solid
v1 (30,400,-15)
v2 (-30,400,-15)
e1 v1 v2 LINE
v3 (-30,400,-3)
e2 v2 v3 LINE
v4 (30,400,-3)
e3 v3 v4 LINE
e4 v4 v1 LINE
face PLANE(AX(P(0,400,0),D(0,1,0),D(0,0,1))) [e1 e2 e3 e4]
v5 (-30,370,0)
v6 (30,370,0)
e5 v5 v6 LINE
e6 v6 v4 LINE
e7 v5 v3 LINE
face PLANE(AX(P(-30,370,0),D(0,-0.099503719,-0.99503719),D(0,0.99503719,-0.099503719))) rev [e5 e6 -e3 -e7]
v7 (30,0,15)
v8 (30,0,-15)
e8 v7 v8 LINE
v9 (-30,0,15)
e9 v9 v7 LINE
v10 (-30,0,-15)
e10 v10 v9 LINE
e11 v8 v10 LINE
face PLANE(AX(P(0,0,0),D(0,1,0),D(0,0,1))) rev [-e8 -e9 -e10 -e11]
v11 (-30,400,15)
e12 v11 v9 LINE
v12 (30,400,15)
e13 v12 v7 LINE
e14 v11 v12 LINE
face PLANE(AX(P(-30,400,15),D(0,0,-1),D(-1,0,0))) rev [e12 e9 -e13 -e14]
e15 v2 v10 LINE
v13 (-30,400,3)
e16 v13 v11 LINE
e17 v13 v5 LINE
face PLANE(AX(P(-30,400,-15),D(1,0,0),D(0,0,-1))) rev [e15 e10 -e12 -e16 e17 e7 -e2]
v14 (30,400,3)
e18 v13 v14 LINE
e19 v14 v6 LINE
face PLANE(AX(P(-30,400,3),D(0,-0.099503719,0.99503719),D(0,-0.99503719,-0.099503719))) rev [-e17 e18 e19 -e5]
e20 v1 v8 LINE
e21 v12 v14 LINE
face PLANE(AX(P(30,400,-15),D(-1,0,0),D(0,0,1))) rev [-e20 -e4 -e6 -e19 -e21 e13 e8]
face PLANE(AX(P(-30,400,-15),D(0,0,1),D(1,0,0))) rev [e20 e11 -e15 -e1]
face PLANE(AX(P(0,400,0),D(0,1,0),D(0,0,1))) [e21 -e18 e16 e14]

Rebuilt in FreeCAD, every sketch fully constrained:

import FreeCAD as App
import Part
import Sketcher

V = App.Vector
Q = App.Units.Quantity

doc = App.newDocument("Part")
body = doc.addObject("PartDesign::Body", "Body")

# Sketch on XZ plane
sketch1 = body.newObject("Sketcher::SketchObject", "Sketch")
sketch1.AttachmentSupport = (doc.getObject("XZ_Plane"), [""])
sketch1.MapMode = "FlatFace"
sketch1.addGeometry([
    Part.LineSegment(V(-30, -15, 0), V(-30, 15, 0)),
    Part.LineSegment(V(-30, 15, 0), V(30, 15, 0)),
    Part.LineSegment(V(30, 15, 0), V(30, -15, 0)),
    Part.LineSegment(V(30, -15, 0), V(-30, -15, 0)),
], False)
sketch1.addConstraint([
    Sketcher.Constraint("Coincident", 0, 2, 1, 1),
    Sketcher.Constraint("Coincident", 1, 2, 2, 1),
    Sketcher.Constraint("Coincident", 2, 2, 3, 1),
    Sketcher.Constraint("Coincident", 3, 2, 0, 1),
    Sketcher.Constraint("Vertical", 0),
    Sketcher.Constraint("Horizontal", 1),
    Sketcher.Constraint("Vertical", 2),
    Sketcher.Constraint("Horizontal", 3),
    Sketcher.Constraint("Symmetric", 0, 2, 2, 2, -1, 1),
    Sketcher.Constraint("DistanceX", 1, 1, 1, 2, Q("60 mm")),
    Sketcher.Constraint("DistanceY", 0, 1, 0, 2, Q("30 mm")),
])
pad1 = body.newObject("PartDesign::Pad", "Pad")
pad1.Profile = sketch1
pad1.Length = 400
pad1.Reversed = True

# Sketch on YZ plane
sketch2 = body.newObject("Sketcher::SketchObject", "Sketch001")
sketch2.AttachmentSupport = (doc.getObject("YZ_Plane"), [""])
sketch2.MapMode = "FlatFace"
sketch2.AttachmentOffset = App.Placement(V(0, 0, 30), App.Rotation())
sketch2.addGeometry([
    Part.LineSegment(V(400, 3, 0), V(370, 0, 0)),
    Part.LineSegment(V(370, 0, 0), V(400, -3, 0)),
    Part.LineSegment(V(400, -3, 0), V(400, 3, 0)),
], False)
sketch2.addConstraint([
    Sketcher.Constraint("Coincident", 0, 2, 1, 1),
    Sketcher.Constraint("Coincident", 1, 2, 2, 1),
    Sketcher.Constraint("Coincident", 2, 2, 0, 1),
    Sketcher.Constraint("Vertical", 2),
    Sketcher.Constraint("PointOnObject", 0, 2, -1),
    Sketcher.Constraint("Equal", 0, 1),
    Sketcher.Constraint("DistanceY", 2, 1, 2, 2, Q("6 mm")),
    Sketcher.Constraint("DistanceX", -1, 1, 0, 2, Q("370 mm")),
    Sketcher.Constraint("DistanceX", -1, 1, 1, 2, Q("400 mm")),
])
pocket1 = body.newObject("PartDesign::Pocket", "Pocket")
pocket1.Profile = sketch2
pocket1.Length = 60

doc.recompute()
